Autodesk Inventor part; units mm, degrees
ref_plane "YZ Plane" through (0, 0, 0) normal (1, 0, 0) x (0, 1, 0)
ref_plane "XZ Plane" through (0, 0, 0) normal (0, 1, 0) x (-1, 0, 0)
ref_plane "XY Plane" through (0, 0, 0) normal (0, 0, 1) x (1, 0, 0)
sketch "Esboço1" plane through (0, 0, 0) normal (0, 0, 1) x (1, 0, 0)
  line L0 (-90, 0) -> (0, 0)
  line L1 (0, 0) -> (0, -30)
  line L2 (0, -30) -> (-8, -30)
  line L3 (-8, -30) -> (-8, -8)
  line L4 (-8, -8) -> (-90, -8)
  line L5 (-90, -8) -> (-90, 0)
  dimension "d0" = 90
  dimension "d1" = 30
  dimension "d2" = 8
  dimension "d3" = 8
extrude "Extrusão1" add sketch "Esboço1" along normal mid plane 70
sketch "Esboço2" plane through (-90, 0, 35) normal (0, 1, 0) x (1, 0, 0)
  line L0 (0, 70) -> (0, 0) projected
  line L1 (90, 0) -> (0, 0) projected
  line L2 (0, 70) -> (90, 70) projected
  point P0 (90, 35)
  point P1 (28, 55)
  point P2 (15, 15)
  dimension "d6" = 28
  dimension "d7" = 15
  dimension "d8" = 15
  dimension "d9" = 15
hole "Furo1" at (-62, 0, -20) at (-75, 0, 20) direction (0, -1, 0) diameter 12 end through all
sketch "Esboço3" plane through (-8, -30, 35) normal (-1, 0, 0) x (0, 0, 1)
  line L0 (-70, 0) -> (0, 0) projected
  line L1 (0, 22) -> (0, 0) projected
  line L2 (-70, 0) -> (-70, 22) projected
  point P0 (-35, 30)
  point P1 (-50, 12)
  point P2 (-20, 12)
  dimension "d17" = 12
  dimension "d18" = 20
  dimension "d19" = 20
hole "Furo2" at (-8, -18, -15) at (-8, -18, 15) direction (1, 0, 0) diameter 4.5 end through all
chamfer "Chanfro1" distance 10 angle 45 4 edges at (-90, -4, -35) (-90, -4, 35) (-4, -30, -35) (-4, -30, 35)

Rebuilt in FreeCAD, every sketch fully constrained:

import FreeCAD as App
import Part
import Sketcher
from FreeCAD import Vector
Q = App.Units.Quantity


def edges_at(feature, points):
    """Names of the edges that pass closest to the given points."""
    edges = feature.Shape.Edges
    near = lambda p: min(range(len(edges)), key=lambda i: edges[i].distToShape(Part.Vertex(*p))[0])
    return sorted({f"Edge{near(p) + 1}" for p in points})


def add_polygon(sketch, points):
    """Adds a closed chain of lines whose ends are joined by coincident constraints."""
    first, n = sketch.GeometryCount, len(points)
    for a, b in zip(points, points[1:] + points[:1]):
        sketch.addGeometry(Part.LineSegment(App.Vector(*a, 0), App.Vector(*b, 0)), False)
    for i in range(n):
        sketch.addConstraint(Sketcher.Constraint("Coincident", first + i, 2, first + (i + 1) % n, 1))

doc = App.newDocument("Part")
params = doc.addObject("Spreadsheet::Sheet", "Params")
for row, (alias, value) in enumerate([
    ("sketch1_width", "90 mm"),
    ("sketch1_width2", "8 mm"),
    ("sketch1_height", "30 mm"),
    ("pad1_length", "70 mm"),
    ("sketch2_diameter", "12 mm"),
    ("hole_diameter", "12 mm"),
    ("sketch3_diameter", "4.5 mm"),
    ("hole2_diameter", "4.5 mm"),
    ("chamfer_size", "10 mm"),
], start=1):
    params.set(f"A{row}", alias)
    params.set(f"B{row}", "=" + value)
    params.setAlias(f"B{row}", alias)

body = doc.addObject("PartDesign::Body", "Body")

# Sketch on XY plane
sketch1 = body.newObject("Sketcher::SketchObject", "Sketch")
sketch1.AttachmentSupport = (doc.getObject("XY_Plane"), [""])
sketch1.MapMode = "FlatFace"
add_polygon(sketch1, [(0, 0), (-90, 0), (-90, -8), (-8, -8), (-8, -30), (0, -30)])  # lines 0-5
sketch1.addConstraint([
    Sketcher.Constraint("Horizontal", 0),
    Sketcher.Constraint("Vertical", 1),
    Sketcher.Constraint("Horizontal", 2),
    Sketcher.Constraint("Vertical", 3),
    Sketcher.Constraint("Horizontal", 4),
    Sketcher.Constraint("Vertical", 5),
    Sketcher.Constraint("Coincident", 5, 2, -1, 1),
    Sketcher.Constraint("Equal", 4, 1),
    Sketcher.Constraint("DistanceX", 0, 2, 0, 1, Q("90 mm")),
    Sketcher.Constraint("DistanceX", 4, 1, 4, 2, Q("8 mm")),
    Sketcher.Constraint("DistanceY", 5, 1, 5, 2, Q("30 mm")),
])
sketch1.setExpression("Constraints[14]", "Params.sketch1_width")
sketch1.setExpression("Constraints[15]", "Params.sketch1_width2")
sketch1.setExpression("Constraints[16]", "Params.sketch1_height")
pad1 = body.newObject("PartDesign::Pad", "Pad")
pad1.Profile = sketch1
pad1.setExpression("Length", "Params.pad1_length")
pad1.Midplane = True

# Sketch on XZ plane
sketch2 = body.newObject("Sketcher::SketchObject", "Sketch001")
sketch2.AttachmentSupport = (doc.getObject("XZ_Plane"), [""])
sketch2.MapMode = "FlatFace"
sketch2.addGeometry([
    Part.Circle(Vector(-62, -20, 0), Vector(0, 0, 1), 6),
    Part.Circle(Vector(-75, 20, 0), Vector(0, 0, 1), 6),
], False)
sketch2.addConstraint([
    Sketcher.Constraint("Equal", 0, 1),
    Sketcher.Constraint("Diameter", 0, Q("12 mm")),
    Sketcher.Constraint("DistanceX", 0, 3, -1, 1, Q("62 mm")),
    Sketcher.Constraint("DistanceY", 0, 3, -1, 1, Q("20 mm")),
    Sketcher.Constraint("DistanceX", 1, 3, -1, 1, Q("75 mm")),
    Sketcher.Constraint("DistanceY", -1, 1, 1, 3, Q("20 mm")),
])
sketch2.setExpression("Constraints[1]", "Params.sketch2_diameter")
doc.recompute()
hole = body.newObject("PartDesign::Hole", "Hole")
hole.Profile = sketch2
hole.ThreadType = "None"
hole.setExpression("Diameter", "Params.hole_diameter")
hole.DepthType = "ThroughAll"
hole.Reversed = True

# Sketch on YZ plane
sketch3 = body.newObject("Sketcher::SketchObject", "Sketch002")
sketch3.AttachmentSupport = (doc.getObject("YZ_Plane"), [""])
sketch3.MapMode = "FlatFace"
sketch3.AttachmentOffset = App.Placement(Vector(0, 0, -8), App.Rotation())
sketch3.addGeometry([
    Part.Circle(Vector(-18, -15, 0), Vector(0, 0, 1), 2.2),
    Part.Circle(Vector(-18, 15, 0), Vector(0, 0, 1), 2.2),
], False)
sketch3.addConstraint([
    Sketcher.Constraint("Equal", 0, 1),
    Sketcher.Constraint("Symmetric", 0, 3, 1, 3, -1),
    Sketcher.Constraint("Diameter", 0, Q("4.5 mm")),
    Sketcher.Constraint("DistanceX", 0, 3, -1, 1, Q("18 mm")),
    Sketcher.Constraint("DistanceY", 0, 3, -1, 1, Q("15 mm")),
])
sketch3.setExpression("Constraints[2]", "Params.sketch3_diameter")
doc.recompute()
hole2 = body.newObject("PartDesign::Hole", "Hole001")
hole2.Profile = sketch3
hole2.ThreadType = "None"
hole2.setExpression("Diameter", "Params.hole2_diameter")
hole2.DepthType = "ThroughAll"
hole2.Reversed = True
doc.recompute()

chamfer = body.newObject("PartDesign::Chamfer", "Chamfer")
chamfer.Base = (hole2, edges_at(hole2, [
    (-90, -4, -35),
    (-90, -4, 35),
    (-4, -30, -35),
    (-4, -30, 35),
]))
chamfer.setExpression("Size", "Params.chamfer_size")

doc.recompute()
